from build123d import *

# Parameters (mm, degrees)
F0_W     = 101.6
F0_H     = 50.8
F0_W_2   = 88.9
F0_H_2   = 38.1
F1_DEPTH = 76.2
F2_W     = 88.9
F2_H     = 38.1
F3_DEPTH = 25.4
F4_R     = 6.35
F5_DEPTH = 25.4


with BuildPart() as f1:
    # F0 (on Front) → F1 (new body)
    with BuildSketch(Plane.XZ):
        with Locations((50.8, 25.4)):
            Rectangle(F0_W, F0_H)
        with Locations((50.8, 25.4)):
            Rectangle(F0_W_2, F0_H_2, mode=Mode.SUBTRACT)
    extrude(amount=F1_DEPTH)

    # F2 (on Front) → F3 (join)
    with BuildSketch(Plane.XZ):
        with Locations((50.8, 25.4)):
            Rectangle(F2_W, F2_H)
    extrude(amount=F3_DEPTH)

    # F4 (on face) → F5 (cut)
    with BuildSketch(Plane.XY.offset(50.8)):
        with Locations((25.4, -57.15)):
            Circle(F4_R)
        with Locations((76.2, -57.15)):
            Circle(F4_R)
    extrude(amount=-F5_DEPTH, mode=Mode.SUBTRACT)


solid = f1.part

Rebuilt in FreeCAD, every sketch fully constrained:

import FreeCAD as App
import Part
import Sketcher

V = App.Vector
Q = App.Units.Quantity

doc = App.newDocument("Part")
body = doc.addObject("PartDesign::Body", "Body")

sketch1 = body.newObject("Sketcher::SketchObject", "Sketch")
sketch1.AttachmentSupport = (doc.getObject("XZ_Plane"), [""])
sketch1.MapMode = "FlatFace"
sketch1.addGeometry([
    Part.LineSegment(V(0, 51, 0), V(0, 0, 0)),
    Part.LineSegment(V(0, 0, 0), V(102, 0, 0)),
    Part.LineSegment(V(102, 0, 0), V(102, 51, 0)),
    Part.LineSegment(V(102, 51, 0), V(0, 51, 0)),
    Part.LineSegment(V(95, 6, 0), V(6, 6, 0)),
    Part.LineSegment(V(6, 6, 0), V(6, 44, 0)),
    Part.LineSegment(V(6, 44, 0), V(95, 44, 0)),
    Part.LineSegment(V(95, 44, 0), V(95, 6, 0)),
], False)
sketch1.addConstraint([
    Sketcher.Constraint("Coincident", 0, 2, 1, 1),
    Sketcher.Constraint("Coincident", 1, 2, 2, 1),
    Sketcher.Constraint("Coincident", 2, 2, 3, 1),
    Sketcher.Constraint("Coincident", 3, 2, 0, 1),
    Sketcher.Constraint("Coincident", 4, 2, 5, 1),
    Sketcher.Constraint("Coincident", 5, 2, 6, 1),
    Sketcher.Constraint("Coincident", 6, 2, 7, 1),
    Sketcher.Constraint("Coincident", 7, 2, 4, 1),
    Sketcher.Constraint("Vertical", 0),
    Sketcher.Constraint("Horizontal", 1),
    Sketcher.Constraint("Vertical", 2),
    Sketcher.Constraint("Horizontal", 3),
    Sketcher.Constraint("Horizontal", 4),
    Sketcher.Constraint("Vertical", 5),
    Sketcher.Constraint("Horizontal", 6),
    Sketcher.Constraint("Vertical", 7),
    Sketcher.Constraint("Coincident", 0, 2, -1, 1),
    Sketcher.Constraint("DistanceX", 1, 1, 1, 2, Q("4 in")),
    Sketcher.Constraint("DistanceY", 0, 2, 0, 1, Q("2 in")),
    Sketcher.Constraint("DistanceX", 4, 2, 4, 1, Q("3.5 in")),
    Sketcher.Constraint("DistanceY", 5, 1, 5, 2, Q("1.5 in")),
    Sketcher.Constraint("DistanceX", -1, 1, 4, 2, Q("0.25 in")),
    Sketcher.Constraint("DistanceY", -1, 1, 4, 2, Q("0.25 in")),
])
pad1 = body.newObject("PartDesign::Pad", "Pad")
pad1.Profile = sketch1
pad1.Length = Q("3 in")

sketch2 = body.newObject("Sketcher::SketchObject", "Sketch001")
sketch2.AttachmentSupport = (doc.getObject("XZ_Plane"), [""])
sketch2.MapMode = "FlatFace"
sketch2.addGeometry([
    Part.LineSegment(V(6, 44, 0), V(6, 6, 0)),
    Part.LineSegment(V(6, 6, 0), V(95, 6, 0)),
    Part.LineSegment(V(95, 6, 0), V(95, 44, 0)),
    Part.LineSegment(V(95, 44, 0), V(6, 44, 0)),
], False)
sketch2.addConstraint([
    Sketcher.Constraint("Coincident", 0, 2, 1, 1),
    Sketcher.Constraint("Coincident", 1, 2, 2, 1),
    Sketcher.Constraint("Coincident", 2, 2, 3, 1),
    Sketcher.Constraint("Coincident", 3, 2, 0, 1),
    Sketcher.Constraint("Vertical", 0),
    Sketcher.Constraint("Horizontal", 1),
    Sketcher.Constraint("Vertical", 2),
    Sketcher.Constraint("Horizontal", 3),
    Sketcher.Constraint("DistanceX", 1, 1, 1, 2, Q("3.5 in")),
    Sketcher.Constraint("DistanceY", 0, 2, 0, 1, Q("1.5 in")),
    Sketcher.Constraint("DistanceX", -1, 1, 0, 2, Q("0.25 in")),
    Sketcher.Constraint("DistanceY", -1, 1, 0, 2, Q("0.25 in")),
])
pad2 = body.newObject("PartDesign::Pad", "Pad001")
pad2.Profile = sketch2
pad2.Length = Q("1 in")

sketch3 = body.newObject("Sketcher::SketchObject", "Sketch002")
sketch3.AttachmentSupport = (doc.getObject("XY_Plane"), [""])
sketch3.MapMode = "FlatFace"
sketch3.AttachmentOffset = App.Placement(V(0, 0, 2 * 25.4), App.Rotation())
sketch3.addGeometry([
    Part.Circle(V(25, -57, 0), V(0, 0, 1), 6),
    Part.Circle(V(76, -57, 0), V(0, 0, 1), 6),
], False)
sketch3.addConstraint([
    Sketcher.Constraint("Equal", 0, 1),
    Sketcher.Constraint("Horizontal", 0, 3, 1, 3),
    Sketcher.Constraint("Diameter", 0, Q("0.5 in")),
    Sketcher.Constraint("DistanceX", -1, 1, 0, 3, Q("1 in")),
    Sketcher.Constraint("DistanceX", -1, 1, 1, 3, Q("3 in")),
    Sketcher.Constraint("DistanceY", 0, 3, -1, 1, Q("2.25 in")),
])
pocket1 = body.newObject("PartDesign::Pocket", "Pocket")
pocket1.Profile = sketch3
pocket1.Length = Q("1 in")

doc.recompute()
